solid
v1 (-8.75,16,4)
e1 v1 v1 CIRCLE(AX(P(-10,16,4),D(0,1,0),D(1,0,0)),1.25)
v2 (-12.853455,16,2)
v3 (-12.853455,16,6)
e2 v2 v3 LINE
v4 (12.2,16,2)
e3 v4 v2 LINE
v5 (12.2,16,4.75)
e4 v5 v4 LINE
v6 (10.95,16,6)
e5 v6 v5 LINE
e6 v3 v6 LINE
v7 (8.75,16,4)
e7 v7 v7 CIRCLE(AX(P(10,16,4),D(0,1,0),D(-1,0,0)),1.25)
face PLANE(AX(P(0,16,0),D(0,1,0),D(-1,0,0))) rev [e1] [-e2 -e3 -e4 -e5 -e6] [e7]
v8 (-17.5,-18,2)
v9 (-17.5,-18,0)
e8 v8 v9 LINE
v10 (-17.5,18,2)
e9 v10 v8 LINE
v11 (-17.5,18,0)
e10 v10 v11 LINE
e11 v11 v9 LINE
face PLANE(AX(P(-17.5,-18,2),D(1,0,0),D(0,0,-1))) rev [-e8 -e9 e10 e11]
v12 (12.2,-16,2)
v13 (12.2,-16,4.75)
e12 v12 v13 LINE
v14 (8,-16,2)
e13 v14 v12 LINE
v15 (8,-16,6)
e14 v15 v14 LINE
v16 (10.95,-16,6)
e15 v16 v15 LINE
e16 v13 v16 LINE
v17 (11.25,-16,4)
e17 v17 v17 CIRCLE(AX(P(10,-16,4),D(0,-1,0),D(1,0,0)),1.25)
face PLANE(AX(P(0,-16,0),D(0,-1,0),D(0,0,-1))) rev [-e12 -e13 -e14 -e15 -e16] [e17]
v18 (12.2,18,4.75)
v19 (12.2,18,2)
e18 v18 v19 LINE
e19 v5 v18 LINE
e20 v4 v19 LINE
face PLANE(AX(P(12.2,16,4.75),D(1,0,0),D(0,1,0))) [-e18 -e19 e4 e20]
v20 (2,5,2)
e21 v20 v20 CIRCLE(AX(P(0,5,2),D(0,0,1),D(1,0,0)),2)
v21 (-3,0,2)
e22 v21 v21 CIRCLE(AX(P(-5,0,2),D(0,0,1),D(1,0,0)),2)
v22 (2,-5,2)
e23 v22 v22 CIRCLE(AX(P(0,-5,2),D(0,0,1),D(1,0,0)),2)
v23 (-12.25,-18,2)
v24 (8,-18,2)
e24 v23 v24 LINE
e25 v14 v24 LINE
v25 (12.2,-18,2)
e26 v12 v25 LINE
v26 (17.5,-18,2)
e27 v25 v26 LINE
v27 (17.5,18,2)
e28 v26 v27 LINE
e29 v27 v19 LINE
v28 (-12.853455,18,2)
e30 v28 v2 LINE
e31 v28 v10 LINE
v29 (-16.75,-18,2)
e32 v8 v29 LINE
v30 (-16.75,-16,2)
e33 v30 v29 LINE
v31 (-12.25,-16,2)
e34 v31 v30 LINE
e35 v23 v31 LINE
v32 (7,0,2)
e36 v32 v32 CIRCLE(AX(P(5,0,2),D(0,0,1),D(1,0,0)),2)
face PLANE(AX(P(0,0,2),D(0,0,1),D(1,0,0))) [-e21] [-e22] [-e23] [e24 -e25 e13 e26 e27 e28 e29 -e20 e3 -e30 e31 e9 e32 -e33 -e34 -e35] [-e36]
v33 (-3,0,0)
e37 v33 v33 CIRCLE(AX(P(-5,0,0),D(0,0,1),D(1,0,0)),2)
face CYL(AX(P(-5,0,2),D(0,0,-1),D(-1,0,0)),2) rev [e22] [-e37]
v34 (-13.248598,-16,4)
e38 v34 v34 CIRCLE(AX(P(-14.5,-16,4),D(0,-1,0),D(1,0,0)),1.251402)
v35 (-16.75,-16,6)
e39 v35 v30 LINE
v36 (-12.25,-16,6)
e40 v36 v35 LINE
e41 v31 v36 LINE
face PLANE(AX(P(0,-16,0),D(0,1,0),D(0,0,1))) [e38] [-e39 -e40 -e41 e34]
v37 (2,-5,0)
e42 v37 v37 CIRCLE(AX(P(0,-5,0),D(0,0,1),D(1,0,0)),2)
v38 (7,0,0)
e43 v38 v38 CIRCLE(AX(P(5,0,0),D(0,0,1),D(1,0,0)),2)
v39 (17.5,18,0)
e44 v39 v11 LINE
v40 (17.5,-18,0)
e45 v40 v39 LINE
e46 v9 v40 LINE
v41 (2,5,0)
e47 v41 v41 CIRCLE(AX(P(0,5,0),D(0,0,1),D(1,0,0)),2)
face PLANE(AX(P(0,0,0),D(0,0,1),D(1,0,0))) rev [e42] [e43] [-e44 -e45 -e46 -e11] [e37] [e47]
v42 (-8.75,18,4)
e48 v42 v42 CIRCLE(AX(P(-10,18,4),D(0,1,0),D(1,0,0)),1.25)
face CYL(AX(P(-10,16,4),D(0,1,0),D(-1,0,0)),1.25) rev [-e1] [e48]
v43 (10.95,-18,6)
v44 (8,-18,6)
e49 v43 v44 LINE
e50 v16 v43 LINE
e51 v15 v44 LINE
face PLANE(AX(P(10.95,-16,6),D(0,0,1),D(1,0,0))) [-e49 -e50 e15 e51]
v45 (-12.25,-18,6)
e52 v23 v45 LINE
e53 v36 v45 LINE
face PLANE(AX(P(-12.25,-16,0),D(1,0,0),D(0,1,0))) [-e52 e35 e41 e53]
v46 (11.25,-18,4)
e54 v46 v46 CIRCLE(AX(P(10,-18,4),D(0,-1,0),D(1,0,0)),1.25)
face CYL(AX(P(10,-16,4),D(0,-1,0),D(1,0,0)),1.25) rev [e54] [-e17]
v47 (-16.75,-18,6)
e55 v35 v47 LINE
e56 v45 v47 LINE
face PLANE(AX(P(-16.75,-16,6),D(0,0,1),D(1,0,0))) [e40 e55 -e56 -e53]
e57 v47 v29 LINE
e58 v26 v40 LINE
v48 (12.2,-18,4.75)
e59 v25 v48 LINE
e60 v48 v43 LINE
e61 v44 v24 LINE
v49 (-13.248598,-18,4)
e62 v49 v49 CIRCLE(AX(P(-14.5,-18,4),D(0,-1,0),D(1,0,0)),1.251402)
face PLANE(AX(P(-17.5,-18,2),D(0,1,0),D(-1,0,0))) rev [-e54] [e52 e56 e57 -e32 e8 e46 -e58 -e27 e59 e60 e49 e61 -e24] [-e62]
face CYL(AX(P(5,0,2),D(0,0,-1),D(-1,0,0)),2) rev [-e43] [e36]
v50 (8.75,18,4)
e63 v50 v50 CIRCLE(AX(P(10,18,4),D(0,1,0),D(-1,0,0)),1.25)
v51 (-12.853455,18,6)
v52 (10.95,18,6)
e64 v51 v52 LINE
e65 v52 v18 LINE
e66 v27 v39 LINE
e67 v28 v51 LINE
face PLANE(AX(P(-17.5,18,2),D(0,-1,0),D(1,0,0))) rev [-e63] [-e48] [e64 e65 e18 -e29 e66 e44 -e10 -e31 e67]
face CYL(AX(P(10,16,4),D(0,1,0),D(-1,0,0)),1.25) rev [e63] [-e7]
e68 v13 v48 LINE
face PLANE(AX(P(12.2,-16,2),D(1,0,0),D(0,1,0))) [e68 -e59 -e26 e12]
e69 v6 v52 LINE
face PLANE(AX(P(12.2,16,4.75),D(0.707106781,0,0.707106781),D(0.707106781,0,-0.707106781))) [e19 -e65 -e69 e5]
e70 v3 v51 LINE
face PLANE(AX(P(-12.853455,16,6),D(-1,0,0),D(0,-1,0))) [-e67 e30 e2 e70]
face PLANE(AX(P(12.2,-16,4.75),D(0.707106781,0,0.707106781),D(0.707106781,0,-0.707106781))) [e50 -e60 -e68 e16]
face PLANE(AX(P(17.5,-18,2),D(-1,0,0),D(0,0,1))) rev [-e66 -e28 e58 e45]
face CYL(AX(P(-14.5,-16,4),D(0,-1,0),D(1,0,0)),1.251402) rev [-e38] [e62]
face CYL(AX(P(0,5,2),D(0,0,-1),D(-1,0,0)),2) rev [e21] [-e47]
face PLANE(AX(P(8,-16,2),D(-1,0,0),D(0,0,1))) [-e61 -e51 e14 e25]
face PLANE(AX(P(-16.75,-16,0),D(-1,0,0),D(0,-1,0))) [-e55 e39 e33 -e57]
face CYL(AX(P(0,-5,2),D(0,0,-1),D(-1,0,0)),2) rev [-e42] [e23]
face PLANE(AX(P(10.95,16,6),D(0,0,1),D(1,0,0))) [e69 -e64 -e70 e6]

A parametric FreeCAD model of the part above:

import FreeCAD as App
import Part
import Sketcher

V = App.Vector
Q = App.Units.Quantity


def add_polygon(sketch, points):
    """Adds a closed chain of lines whose ends are joined by coincident constraints."""
    first, n = sketch.GeometryCount, len(points)
    for a, b in zip(points, points[1:] + points[:1]):
        sketch.addGeometry(Part.LineSegment(App.Vector(*a, 0), App.Vector(*b, 0)), False)
    for i in range(n):
        sketch.addConstraint(Sketcher.Constraint("Coincident", first + i, 2, first + (i + 1) % n, 1))

doc = App.newDocument("Part")
body = doc.addObject("PartDesign::Body", "Body")

sketch1 = body.newObject("Sketcher::SketchObject", "Sketch")
sketch1.AttachmentSupport = (doc.getObject("XY_Plane"), [""])
sketch1.MapMode = "FlatFace"
add_polygon(sketch1, [(-17.5, -18), (17.5, -18), (17.5, 18), (-17.5, 18)])
sketch1.addGeometry(Part.Circle(V(5, 0, 0), V(0, 0, 1), 2), False)
sketch1.addGeometry(Part.Circle(V(0, -5, 0), V(0, 0, 1), 2), False)
sketch1.addGeometry(Part.Circle(V(0, 5, 0), V(0, 0, 1), 2), False)
sketch1.addGeometry(Part.Circle(V(-5, 0, 0), V(0, 0, 1), 2), False)
sketch1.addConstraint([
    Sketcher.Constraint("Horizontal", 0),
    Sketcher.Constraint("Vertical", 1),
    Sketcher.Constraint("Horizontal", 2),
    Sketcher.Constraint("Vertical", 3),
    Sketcher.Constraint("Equal", 4, 5),
    Sketcher.Constraint("Equal", 5, 6),
    Sketcher.Constraint("Equal", 6, 7),
    Sketcher.Constraint("Symmetric", 5, 3, 6, 3, -1, 1),
    Sketcher.Constraint("Symmetric", 4, 3, 7, 3, -1, 1),
    Sketcher.Constraint("Symmetric", 0, 2, 2, 2, -1, 1),
    Sketcher.Constraint("PointOnObject", 4, 3, -1),
    Sketcher.Constraint("PointOnObject", 5, 3, -2),
    Sketcher.Constraint("Diameter", 4, 4.0),
    Sketcher.Constraint("DistanceX", 0, 1, 0, 2, 35.0),
    Sketcher.Constraint("DistanceY", 1, 1, 1, 2, 36.0),
    Sketcher.Constraint("DistanceX", -1, 1, 4, 3, 5.0),
    Sketcher.Constraint("DistanceY", 5, 3, -1, 1, 5.0),
])
pad1 = body.newObject("PartDesign::Pad", "Pad")
pad1.Profile = sketch1
pad1.Length = 2

sketch2 = body.newObject("Sketcher::SketchObject", "Sketch001")
sketch2.AttachmentSupport = (doc.getObject("XZ_Plane"), [""])
sketch2.MapMode = "FlatFace"
sketch2.AttachmentOffset = App.Placement(V(0, 0, -18), App.Rotation())
add_polygon(sketch2, [(-12.853455, 6), (10.95, 6), (12.2, 4.75), (12.2, 0), (-12.853455, 0)])
sketch2.addGeometry(Part.Circle(V(-10, 4, 0), V(0, 0, 1), 1.25), False)
sketch2.addGeometry(Part.Circle(V(10, 4, 0), V(0, 0, 1), 1.25), False)
sketch2.addConstraint([
    Sketcher.Constraint("Horizontal", 0),
    Sketcher.Constraint("Vertical", 2),
    Sketcher.Constraint("Horizontal", 3),
    Sketcher.Constraint("Vertical", 4),
    Sketcher.Constraint("Equal", 5, 6),
    Sketcher.Constraint("Symmetric", 5, 3, 6, 3, -2),
    Sketcher.Constraint("PointOnObject", 2, 2, -1),
    Sketcher.Constraint("Diameter", 5, 2.5),
    Sketcher.Constraint("DistanceY", 4, 1, 4, 2, 6.0),
    Sketcher.Constraint("Angle", 1, Q("-45 deg")),
    Sketcher.Constraint("DistanceX", 5, 3, -1, 1, 10.0),
    Sketcher.Constraint("DistanceY", -1, 1, 5, 3, 4.0),
    Sketcher.Constraint("DistanceY", 2, 2, 2, 1, 4.75),
    Sketcher.Constraint("DistanceX", -1, 1, 1, 2, 12.2),
    Sketcher.Constraint("DistanceX", 0, 1, 0, 2, 23.803455),
])
pad2 = body.newObject("PartDesign::Pad", "Pad001")
pad2.Profile = sketch2
pad2.Length = 2

sketch3 = body.newObject("Sketcher::SketchObject", "Sketch002")
sketch3.AttachmentSupport = (doc.getObject("XZ_Plane"), [""])
sketch3.MapMode = "FlatFace"
sketch3.AttachmentOffset = App.Placement(V(0, 0, 16), App.Rotation())
add_polygon(sketch3, [(-16.75, 6), (-16.75, 0), (-12.25, 0), (-12.25, 6)])
sketch3.addGeometry(Part.Circle(V(-14.5, 4, 0), V(0, 0, 1), 1.251402), False)
add_polygon(sketch3, [(12.2, 4.75), (10.95, 6), (8, 6), (8, 2), (12.2, 2)])
sketch3.addGeometry(Part.Circle(V(10, 4, 0), V(0, 0, 1), 1.25), False)
sketch3.addConstraint([
    Sketcher.Constraint("Vertical", 0),
    Sketcher.Constraint("Horizontal", 1),
    Sketcher.Constraint("Vertical", 2),
    Sketcher.Constraint("Horizontal", 3),
    Sketcher.Constraint("Horizontal", 6),
    Sketcher.Constraint("Vertical", 7),
    Sketcher.Constraint("Horizontal", 8),
    Sketcher.Constraint("Vertical", 9),
    Sketcher.Constraint("PointOnObject", 0, 2, -1),
    Sketcher.Constraint("Horizontal", 4, 3, 10, 3),
    Sketcher.Constraint("Horizontal", 3, 2, 5, 2),
    Sketcher.Constraint("Diameter", 10, 2.5),
    Sketcher.Constraint("DistanceY", 0, 2, 0, 1, 6.0),
    Sketcher.Constraint("DistanceY", 7, 2, 7, 1, 4.0),
    Sketcher.Constraint("Angle", 5, Q("135 deg")),
    Sketcher.Constraint("DistanceX", 1, 1, 1, 2, 4.5),
    Sketcher.Constraint("DistanceX", 8, 1, 8, 2, 4.2),
    Sketcher.Constraint("DistanceY", -1, 1, 4, 3, 4.0),
    Sketcher.Constraint("DistanceX", -1, 1, 10, 3, 10.0),
    Sketcher.Constraint("DistanceX", -1, 1, 6, 2, 8.0),
    Sketcher.Constraint("DistanceX", 6, 2, 6, 1, 2.95),
    Sketcher.Constraint("DistanceX", 4, 3, -1, 1, 14.5),
    Sketcher.Constraint("DistanceX", 2, 2, 5, 2, 23.2),
    Sketcher.Constraint("Diameter", 4, 2.502804),
])
pad3 = body.newObject("PartDesign::Pad", "Pad002")
pad3.Profile = sketch3
pad3.Length = 2

doc.recompute()
